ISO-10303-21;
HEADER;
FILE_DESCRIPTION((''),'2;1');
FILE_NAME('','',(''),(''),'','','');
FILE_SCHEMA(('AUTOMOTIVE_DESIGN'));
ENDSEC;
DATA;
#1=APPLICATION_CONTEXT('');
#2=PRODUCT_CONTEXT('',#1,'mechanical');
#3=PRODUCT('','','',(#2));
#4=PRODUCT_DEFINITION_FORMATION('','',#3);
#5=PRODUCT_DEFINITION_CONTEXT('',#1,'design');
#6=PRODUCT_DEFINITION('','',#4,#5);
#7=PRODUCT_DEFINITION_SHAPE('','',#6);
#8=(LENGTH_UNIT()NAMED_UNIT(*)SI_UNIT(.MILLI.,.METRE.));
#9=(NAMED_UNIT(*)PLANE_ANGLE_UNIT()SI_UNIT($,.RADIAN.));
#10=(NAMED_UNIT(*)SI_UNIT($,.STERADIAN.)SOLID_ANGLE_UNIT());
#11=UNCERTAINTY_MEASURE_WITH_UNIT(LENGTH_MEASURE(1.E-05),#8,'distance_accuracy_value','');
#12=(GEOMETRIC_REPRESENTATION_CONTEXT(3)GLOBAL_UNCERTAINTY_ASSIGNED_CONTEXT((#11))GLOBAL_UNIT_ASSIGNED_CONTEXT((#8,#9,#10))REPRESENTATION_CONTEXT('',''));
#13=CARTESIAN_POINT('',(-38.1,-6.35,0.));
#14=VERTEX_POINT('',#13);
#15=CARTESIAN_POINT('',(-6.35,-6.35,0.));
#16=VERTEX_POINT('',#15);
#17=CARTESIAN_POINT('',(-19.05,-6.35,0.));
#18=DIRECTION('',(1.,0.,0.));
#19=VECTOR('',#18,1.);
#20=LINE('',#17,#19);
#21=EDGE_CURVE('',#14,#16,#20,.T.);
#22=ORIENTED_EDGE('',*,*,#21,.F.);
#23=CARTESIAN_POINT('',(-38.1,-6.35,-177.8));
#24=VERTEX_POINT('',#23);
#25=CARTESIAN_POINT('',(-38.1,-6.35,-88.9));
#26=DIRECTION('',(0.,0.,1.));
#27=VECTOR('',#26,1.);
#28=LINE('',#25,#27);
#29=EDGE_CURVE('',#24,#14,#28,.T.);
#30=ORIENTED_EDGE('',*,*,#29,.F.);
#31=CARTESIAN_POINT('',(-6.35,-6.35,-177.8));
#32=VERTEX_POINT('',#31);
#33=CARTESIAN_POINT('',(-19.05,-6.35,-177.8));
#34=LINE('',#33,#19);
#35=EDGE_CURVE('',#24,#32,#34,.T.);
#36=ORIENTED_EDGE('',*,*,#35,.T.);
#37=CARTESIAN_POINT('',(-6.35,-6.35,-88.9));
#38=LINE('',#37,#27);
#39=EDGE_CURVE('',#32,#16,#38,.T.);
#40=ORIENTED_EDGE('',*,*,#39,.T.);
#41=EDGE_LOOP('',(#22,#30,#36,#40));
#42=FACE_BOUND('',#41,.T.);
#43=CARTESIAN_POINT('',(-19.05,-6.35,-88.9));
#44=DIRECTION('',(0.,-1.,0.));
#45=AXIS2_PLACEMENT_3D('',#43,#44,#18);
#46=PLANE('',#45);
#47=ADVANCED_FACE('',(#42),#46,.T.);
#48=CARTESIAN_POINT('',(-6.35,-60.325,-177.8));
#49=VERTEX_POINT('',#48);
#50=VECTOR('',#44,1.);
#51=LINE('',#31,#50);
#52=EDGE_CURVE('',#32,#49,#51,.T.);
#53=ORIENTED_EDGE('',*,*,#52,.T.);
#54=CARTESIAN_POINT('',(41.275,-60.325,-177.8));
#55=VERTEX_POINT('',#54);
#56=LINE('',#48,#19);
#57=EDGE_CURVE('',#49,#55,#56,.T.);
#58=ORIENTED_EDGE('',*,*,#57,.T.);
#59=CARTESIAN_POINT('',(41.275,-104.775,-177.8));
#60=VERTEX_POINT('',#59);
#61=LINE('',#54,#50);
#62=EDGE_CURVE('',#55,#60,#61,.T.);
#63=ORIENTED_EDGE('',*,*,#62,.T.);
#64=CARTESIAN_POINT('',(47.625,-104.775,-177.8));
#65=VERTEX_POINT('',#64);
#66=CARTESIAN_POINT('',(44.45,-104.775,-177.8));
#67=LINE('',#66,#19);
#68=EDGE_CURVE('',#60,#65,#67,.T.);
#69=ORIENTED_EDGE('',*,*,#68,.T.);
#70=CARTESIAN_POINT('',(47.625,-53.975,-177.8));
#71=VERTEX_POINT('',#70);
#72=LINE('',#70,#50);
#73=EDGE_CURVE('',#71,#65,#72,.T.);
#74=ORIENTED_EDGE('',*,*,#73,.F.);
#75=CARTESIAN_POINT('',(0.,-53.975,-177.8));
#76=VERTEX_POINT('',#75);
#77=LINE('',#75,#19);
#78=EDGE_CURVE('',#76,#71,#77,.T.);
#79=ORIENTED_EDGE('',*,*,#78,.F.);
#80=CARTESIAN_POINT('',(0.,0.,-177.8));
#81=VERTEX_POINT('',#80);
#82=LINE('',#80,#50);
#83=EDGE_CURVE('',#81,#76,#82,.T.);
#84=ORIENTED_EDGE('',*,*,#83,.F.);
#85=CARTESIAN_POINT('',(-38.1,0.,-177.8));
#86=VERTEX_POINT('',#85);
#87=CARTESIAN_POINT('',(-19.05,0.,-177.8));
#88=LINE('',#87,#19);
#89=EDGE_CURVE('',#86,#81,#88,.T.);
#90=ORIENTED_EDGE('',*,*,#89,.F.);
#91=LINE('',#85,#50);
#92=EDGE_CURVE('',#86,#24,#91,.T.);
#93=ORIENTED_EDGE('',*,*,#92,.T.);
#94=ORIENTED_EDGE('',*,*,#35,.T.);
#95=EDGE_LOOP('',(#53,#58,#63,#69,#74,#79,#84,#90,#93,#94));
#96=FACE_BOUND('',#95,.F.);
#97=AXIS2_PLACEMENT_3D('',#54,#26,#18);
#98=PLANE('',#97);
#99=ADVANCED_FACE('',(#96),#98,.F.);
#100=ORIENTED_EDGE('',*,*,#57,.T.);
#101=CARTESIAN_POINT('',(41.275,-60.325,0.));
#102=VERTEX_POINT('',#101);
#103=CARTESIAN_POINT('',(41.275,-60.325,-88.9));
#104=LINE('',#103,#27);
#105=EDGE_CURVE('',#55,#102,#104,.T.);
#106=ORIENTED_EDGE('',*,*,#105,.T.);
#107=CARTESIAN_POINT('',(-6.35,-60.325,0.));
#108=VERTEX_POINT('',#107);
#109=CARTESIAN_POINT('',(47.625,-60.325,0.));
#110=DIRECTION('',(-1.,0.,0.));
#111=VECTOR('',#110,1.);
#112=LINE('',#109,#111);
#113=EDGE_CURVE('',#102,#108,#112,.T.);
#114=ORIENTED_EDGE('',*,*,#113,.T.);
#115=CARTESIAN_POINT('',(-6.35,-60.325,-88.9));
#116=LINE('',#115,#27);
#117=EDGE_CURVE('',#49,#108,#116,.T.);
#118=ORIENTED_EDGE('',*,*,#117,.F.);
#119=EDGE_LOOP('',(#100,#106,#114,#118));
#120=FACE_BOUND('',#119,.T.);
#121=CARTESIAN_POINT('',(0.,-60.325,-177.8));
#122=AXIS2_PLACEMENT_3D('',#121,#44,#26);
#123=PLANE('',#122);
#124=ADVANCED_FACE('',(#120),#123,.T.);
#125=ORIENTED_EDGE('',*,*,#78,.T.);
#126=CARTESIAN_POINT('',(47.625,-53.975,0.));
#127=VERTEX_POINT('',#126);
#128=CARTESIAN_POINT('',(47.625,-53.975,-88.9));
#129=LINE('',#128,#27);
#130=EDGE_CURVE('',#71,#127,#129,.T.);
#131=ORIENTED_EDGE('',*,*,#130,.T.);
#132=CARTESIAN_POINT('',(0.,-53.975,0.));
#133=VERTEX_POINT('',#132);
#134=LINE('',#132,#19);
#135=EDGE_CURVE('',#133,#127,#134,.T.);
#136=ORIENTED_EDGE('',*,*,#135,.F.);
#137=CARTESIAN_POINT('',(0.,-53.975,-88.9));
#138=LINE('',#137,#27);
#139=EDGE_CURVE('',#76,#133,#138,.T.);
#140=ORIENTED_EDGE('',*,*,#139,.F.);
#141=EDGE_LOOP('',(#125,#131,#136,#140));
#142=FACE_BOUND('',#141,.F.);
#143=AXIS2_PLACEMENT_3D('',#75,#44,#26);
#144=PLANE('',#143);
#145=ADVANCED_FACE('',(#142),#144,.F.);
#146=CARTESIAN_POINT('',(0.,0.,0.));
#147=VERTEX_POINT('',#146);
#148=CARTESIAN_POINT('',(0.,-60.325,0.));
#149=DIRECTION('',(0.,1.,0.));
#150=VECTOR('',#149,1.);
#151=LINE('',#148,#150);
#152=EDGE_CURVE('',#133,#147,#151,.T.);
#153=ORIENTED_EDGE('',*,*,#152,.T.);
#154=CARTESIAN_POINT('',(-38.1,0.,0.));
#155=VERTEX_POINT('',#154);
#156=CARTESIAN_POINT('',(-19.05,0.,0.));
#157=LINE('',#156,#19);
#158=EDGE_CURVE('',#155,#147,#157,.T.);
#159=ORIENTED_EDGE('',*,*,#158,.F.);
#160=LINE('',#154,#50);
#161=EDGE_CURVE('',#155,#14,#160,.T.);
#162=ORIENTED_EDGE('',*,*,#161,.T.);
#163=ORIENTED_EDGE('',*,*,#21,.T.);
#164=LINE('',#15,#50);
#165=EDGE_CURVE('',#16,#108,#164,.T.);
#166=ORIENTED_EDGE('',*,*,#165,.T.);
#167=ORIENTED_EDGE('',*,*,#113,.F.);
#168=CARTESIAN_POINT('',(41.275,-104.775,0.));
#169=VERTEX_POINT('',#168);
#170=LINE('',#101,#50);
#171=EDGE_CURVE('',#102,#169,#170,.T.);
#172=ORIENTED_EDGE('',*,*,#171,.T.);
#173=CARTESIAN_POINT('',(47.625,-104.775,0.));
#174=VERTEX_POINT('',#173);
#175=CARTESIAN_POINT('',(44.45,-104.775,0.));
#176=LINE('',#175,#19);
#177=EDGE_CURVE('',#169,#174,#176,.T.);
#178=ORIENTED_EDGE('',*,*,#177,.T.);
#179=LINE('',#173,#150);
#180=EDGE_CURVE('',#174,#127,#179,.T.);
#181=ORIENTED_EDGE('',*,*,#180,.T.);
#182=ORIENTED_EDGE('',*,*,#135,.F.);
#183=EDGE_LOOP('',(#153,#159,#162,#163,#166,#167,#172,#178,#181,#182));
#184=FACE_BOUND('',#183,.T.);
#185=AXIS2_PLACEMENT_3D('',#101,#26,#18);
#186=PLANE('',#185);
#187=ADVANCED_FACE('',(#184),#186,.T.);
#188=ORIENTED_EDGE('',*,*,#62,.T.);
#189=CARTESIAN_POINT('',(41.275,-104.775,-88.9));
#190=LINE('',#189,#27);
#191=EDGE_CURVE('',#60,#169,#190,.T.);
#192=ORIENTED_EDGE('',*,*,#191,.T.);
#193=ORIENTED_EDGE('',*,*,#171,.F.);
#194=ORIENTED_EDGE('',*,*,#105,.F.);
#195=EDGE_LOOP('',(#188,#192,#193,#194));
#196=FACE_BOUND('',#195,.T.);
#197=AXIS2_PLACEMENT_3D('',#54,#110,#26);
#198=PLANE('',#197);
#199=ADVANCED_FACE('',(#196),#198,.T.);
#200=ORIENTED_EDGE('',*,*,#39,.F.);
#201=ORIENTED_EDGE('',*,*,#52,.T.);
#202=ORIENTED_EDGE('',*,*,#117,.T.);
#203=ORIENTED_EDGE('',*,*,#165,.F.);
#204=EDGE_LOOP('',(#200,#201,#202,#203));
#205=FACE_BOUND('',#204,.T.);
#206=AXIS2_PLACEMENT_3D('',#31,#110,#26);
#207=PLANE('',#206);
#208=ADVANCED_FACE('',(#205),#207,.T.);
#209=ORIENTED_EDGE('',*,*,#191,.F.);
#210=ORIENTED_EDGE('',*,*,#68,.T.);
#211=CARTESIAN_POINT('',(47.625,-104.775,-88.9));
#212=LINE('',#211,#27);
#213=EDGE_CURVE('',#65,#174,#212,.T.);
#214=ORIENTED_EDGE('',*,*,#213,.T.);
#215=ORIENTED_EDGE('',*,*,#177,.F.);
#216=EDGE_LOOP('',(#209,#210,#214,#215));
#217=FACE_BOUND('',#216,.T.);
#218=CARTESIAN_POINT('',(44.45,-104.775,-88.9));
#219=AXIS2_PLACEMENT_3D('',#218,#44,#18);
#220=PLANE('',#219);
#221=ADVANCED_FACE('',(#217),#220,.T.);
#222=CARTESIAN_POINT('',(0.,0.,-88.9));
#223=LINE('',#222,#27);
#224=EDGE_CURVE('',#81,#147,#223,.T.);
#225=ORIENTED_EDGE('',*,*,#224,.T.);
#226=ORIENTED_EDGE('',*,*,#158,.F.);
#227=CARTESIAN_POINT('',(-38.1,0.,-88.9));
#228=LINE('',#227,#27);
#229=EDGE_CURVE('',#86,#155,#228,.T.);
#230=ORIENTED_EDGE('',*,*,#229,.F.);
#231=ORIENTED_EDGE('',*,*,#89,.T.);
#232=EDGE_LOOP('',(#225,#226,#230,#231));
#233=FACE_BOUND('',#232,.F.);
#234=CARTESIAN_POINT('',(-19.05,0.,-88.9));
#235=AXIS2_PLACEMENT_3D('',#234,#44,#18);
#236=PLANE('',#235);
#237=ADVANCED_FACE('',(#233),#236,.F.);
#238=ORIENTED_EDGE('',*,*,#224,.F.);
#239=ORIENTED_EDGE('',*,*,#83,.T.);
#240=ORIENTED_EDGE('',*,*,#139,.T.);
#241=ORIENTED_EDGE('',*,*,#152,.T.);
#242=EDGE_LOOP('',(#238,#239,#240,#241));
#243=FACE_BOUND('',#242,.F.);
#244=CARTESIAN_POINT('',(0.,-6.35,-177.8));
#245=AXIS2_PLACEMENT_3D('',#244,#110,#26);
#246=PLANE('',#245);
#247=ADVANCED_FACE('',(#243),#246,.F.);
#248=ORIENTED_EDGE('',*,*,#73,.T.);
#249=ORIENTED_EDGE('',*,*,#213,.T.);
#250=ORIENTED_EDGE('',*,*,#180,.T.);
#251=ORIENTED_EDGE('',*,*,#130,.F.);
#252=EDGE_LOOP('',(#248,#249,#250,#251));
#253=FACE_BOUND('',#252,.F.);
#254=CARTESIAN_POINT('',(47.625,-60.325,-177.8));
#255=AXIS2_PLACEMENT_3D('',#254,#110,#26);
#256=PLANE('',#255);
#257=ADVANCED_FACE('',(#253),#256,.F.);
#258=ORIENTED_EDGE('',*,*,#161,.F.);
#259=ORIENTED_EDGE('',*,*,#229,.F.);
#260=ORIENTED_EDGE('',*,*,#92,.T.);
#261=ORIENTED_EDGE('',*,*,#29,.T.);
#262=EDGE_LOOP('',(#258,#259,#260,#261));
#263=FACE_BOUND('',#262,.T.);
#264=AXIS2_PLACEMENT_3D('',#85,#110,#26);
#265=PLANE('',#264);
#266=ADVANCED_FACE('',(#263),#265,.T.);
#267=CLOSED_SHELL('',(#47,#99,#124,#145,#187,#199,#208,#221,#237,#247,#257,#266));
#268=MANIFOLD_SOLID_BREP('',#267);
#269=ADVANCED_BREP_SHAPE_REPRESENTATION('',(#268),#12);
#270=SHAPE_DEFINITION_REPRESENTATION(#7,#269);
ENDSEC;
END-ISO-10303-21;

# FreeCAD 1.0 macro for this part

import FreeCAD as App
import Part
import Sketcher
Q = App.Units.Quantity

doc = App.newDocument("Part")
body = doc.addObject("PartDesign::Body", "Body")

# Sketch on XZ plane
sketch1 = body.newObject("Sketcher::SketchObject", "Sketch")
sketch1.AttachmentSupport = (doc.getObject("XZ_Plane"), [""])
sketch1.MapMode = "FlatFace"
sketch1.addGeometry(Part.LineSegment(App.Vector(-38, 0, 0), App.Vector(-38, -178, 0)), False)
sketch1.addGeometry(Part.LineSegment(App.Vector(-38, -178, 0), App.Vector(0, -178, 0)), False)
sketch1.addGeometry(Part.LineSegment(App.Vector(0, -178, 0), App.Vector(0, 0, 0)), False)
sketch1.addGeometry(Part.LineSegment(App.Vector(0, 0, 0), App.Vector(-38, 0, 0)), False)
sketch1.addConstraint(Sketcher.Constraint("Coincident", 0, 2, 1, 1))
sketch1.addConstraint(Sketcher.Constraint("Coincident", 1, 2, 2, 1))
sketch1.addConstraint(Sketcher.Constraint("Coincident", 2, 2, 3, 1))
sketch1.addConstraint(Sketcher.Constraint("Coincident", 3, 2, 0, 1))
sketch1.addConstraint(Sketcher.Constraint("Vertical", 0))
sketch1.addConstraint(Sketcher.Constraint("Horizontal", 1))
sketch1.addConstraint(Sketcher.Constraint("Vertical", 2))
sketch1.addConstraint(Sketcher.Constraint("Horizontal", 3))
sketch1.addConstraint(Sketcher.Constraint("Coincident", 2, 2, -1, 1))
sketch1.addConstraint(Sketcher.Constraint("DistanceY", 0, 2, 0, 1, Q("7 in")))
sketch1.addConstraint(Sketcher.Constraint("DistanceX", 1, 1, 1, 2, Q("1.5 in")))
pad1 = body.newObject("PartDesign::Pad", "Pad")
pad1.Profile = sketch1
pad1.Length = Q("0.25 in")

# Sketch on XZ plane
sketch2 = body.newObject("Sketcher::SketchObject", "Sketch001")
sketch2.AttachmentSupport = (doc.getObject("XZ_Plane"), [""])
sketch2.MapMode = "FlatFace"
sketch2.AttachmentOffset = App.Placement(App.Vector(0, 0, 0.25 * 25.4), App.Rotation())
sketch2.addGeometry(Part.LineSegment(App.Vector(-6, 0, 0), App.Vector(-6, -178, 0)), False)
sketch2.addGeometry(Part.LineSegment(App.Vector(-6, -178, 0), App.Vector(0, -178, 0)), False)
sketch2.addGeometry(Part.LineSegment(App.Vector(0, -178, 0), App.Vector(0, 0, 0)), False)
sketch2.addGeometry(Part.LineSegment(App.Vector(0, 0, 0), App.Vector(-6, 0, 0)), False)
sketch2.addConstraint(Sketcher.Constraint("Coincident", 0, 2, 1, 1))
sketch2.addConstraint(Sketcher.Constraint("Coincident", 1, 2, 2, 1))
sketch2.addConstraint(Sketcher.Constraint("Coincident", 2, 2, 3, 1))
sketch2.addConstraint(Sketcher.Constraint("Coincident", 3, 2, 0, 1))
sketch2.addConstraint(Sketcher.Constraint("Vertical", 0))
sketch2.addConstraint(Sketcher.Constraint("Horizontal", 1))
sketch2.addConstraint(Sketcher.Constraint("Vertical", 2))
sketch2.addConstraint(Sketcher.Constraint("Horizontal", 3))
sketch2.addConstraint(Sketcher.Constraint("Coincident", 2, 2, -1, 1))
sketch2.addConstraint(Sketcher.Constraint("DistanceY", 0, 2, 0, 1, Q("7 in")))
sketch2.addConstraint(Sketcher.Constraint("DistanceX", 1, 1, 1, 2, Q("0.25 in")))
pad2 = body.newObject("PartDesign::Pad", "Pad001")
pad2.Profile = sketch2
pad2.Length = Q("2.125 in")

# Sketch on YZ plane
sketch3 = body.newObject("Sketcher::SketchObject", "Sketch002")
sketch3.AttachmentSupport = (doc.getObject("YZ_Plane"), [""])
sketch3.MapMode = "FlatFace"
sketch3.addGeometry(Part.LineSegment(App.Vector(-60, 0, 0), App.Vector(-60, -178, 0)), False)
sketch3.addGeometry(Part.LineSegment(App.Vector(-60, -178, 0), App.Vector(-54, -178, 0)), False)
sketch3.addGeometry(Part.LineSegment(App.Vector(-54, -178, 0), App.Vector(-54, 0, 0)), False)
sketch3.addGeometry(Part.LineSegment(App.Vector(-54, 0, 0), App.Vector(-60, 0, 0)), False)
sketch3.addConstraint(Sketcher.Constraint("Coincident", 0, 2, 1, 1))
sketch3.addConstraint(Sketcher.Constraint("Coincident", 1, 2, 2, 1))
sketch3.addConstraint(Sketcher.Constraint("Coincident", 2, 2, 3, 1))
sketch3.addConstraint(Sketcher.Constraint("Coincident", 3, 2, 0, 1))
sketch3.addConstraint(Sketcher.Constraint("Vertical", 0))
sketch3.addConstraint(Sketcher.Constraint("Horizontal", 1))
sketch3.addConstraint(Sketcher.Constraint("Vertical", 2))
sketch3.addConstraint(Sketcher.Constraint("Horizontal", 3))
sketch3.addConstraint(Sketcher.Constraint("PointOnObject", 2, 2, -1))
sketch3.addConstraint(Sketcher.Constraint("DistanceY", 0, 2, 0, 1, Q("7 in")))
sketch3.addConstraint(Sketcher.Constraint("DistanceX", 1, 1, 1, 2, Q("0.25 in")))
sketch3.addConstraint(Sketcher.Constraint("DistanceX", 0, 2, -1, 1, Q("2.375 in")))
pad3 = body.newObject("PartDesign::Pad", "Pad002")
pad3.Profile = sketch3
pad3.Length = Q("1.875 in")

# Sketch on XZ plane
sketch4 = body.newObject("Sketcher::SketchObject", "Sketch003")
sketch4.AttachmentSupport = (doc.getObject("XZ_Plane"), [""])
sketch4.MapMode = "FlatFace"
sketch4.AttachmentOffset = App.Placement(App.Vector(0, 0, 2.375 * 25.4), App.Rotation())
sketch4.addGeometry(Part.LineSegment(App.Vector(41, 0, 0), App.Vector(41, -178, 0)), False)
sketch4.addGeometry(Part.LineSegment(App.Vector(41, -178, 0), App.Vector(48, -178, 0)), False)
sketch4.addGeometry(Part.LineSegment(App.Vector(48, -178, 0), App.Vector(48, 0, 0)), False)
sketch4.addGeometry(Part.LineSegment(App.Vector(48, 0, 0), App.Vector(41, 0, 0)), False)
sketch4.addConstraint(Sketcher.Constraint("Coincident", 0, 2, 1, 1))
sketch4.addConstraint(Sketcher.Constraint("Coincident", 1, 2, 2, 1))
sketch4.addConstraint(Sketcher.Constraint("Coincident", 2, 2, 3, 1))
sketch4.addConstraint(Sketcher.Constraint("Coincident", 3, 2, 0, 1))
sketch4.addConstraint(Sketcher.Constraint("Vertical", 0))
sketch4.addConstraint(Sketcher.Constraint("Horizontal", 1))
sketch4.addConstraint(Sketcher.Constraint("Vertical", 2))
sketch4.addConstraint(Sketcher.Constraint("Horizontal", 3))
sketch4.addConstraint(Sketcher.Constraint("PointOnObject", 2, 2, -1))
sketch4.addConstraint(Sketcher.Constraint("DistanceY", 0, 2, 0, 1, Q("7 in")))
sketch4.addConstraint(Sketcher.Constraint("DistanceX", 1, 1, 1, 2, Q("0.25 in")))
sketch4.addConstraint(Sketcher.Constraint("DistanceX", -1, 1, 0, 2, Q("1.625 in")))
pad4 = body.newObject("PartDesign::Pad", "Pad003")
pad4.Profile = sketch4
pad4.Length = Q("1.75 in")

doc.recompute()
